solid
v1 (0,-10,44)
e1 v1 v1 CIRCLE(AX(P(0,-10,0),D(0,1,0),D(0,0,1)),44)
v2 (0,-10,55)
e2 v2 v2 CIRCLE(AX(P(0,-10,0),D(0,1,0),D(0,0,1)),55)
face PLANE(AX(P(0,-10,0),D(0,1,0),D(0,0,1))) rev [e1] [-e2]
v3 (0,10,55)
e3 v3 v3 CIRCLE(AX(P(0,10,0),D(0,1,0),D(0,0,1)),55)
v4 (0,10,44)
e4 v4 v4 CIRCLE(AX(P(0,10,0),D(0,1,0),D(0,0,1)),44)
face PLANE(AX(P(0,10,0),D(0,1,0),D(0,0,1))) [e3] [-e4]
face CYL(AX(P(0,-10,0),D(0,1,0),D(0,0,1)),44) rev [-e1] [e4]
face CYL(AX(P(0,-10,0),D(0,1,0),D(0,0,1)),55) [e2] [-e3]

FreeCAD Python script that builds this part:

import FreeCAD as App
import Part
import Sketcher

V = App.Vector
Q = App.Units.Quantity

doc = App.newDocument("Part")
body = doc.addObject("PartDesign::Body", "Body")

sketch1 = doc.addObject("Sketcher::SketchObject", "Sketch")
body.addObject(sketch1)
sketch1.AttachmentSupport = (doc.XZ_Plane, [""])
sketch1.MapMode = "FlatFace"
sketch1.addGeometry([
    Part.Circle(V(0, 0, 0), V(0, 0, 1), 55),
    Part.Circle(V(0, 0, 0), V(0, 0, 1), 44),
], False)
sketch1.addConstraint([
    Sketcher.Constraint("Coincident", 0, 3, -1, 1),
    Sketcher.Constraint("Coincident", 1, 3, -1, 1),
    Sketcher.Constraint("Diameter", 0, Q("110 mm")),
    Sketcher.Constraint("Diameter", 1, Q("88 mm")),
])
pad1 = doc.addObject("PartDesign::Pad", "Pad")
body.addObject(pad1)
pad1.Profile = sketch1
pad1.Type = "TwoLengths"
pad1.Length = 10
pad1.Length2 = 10
pad1.Reversed = True

doc.recompute()
